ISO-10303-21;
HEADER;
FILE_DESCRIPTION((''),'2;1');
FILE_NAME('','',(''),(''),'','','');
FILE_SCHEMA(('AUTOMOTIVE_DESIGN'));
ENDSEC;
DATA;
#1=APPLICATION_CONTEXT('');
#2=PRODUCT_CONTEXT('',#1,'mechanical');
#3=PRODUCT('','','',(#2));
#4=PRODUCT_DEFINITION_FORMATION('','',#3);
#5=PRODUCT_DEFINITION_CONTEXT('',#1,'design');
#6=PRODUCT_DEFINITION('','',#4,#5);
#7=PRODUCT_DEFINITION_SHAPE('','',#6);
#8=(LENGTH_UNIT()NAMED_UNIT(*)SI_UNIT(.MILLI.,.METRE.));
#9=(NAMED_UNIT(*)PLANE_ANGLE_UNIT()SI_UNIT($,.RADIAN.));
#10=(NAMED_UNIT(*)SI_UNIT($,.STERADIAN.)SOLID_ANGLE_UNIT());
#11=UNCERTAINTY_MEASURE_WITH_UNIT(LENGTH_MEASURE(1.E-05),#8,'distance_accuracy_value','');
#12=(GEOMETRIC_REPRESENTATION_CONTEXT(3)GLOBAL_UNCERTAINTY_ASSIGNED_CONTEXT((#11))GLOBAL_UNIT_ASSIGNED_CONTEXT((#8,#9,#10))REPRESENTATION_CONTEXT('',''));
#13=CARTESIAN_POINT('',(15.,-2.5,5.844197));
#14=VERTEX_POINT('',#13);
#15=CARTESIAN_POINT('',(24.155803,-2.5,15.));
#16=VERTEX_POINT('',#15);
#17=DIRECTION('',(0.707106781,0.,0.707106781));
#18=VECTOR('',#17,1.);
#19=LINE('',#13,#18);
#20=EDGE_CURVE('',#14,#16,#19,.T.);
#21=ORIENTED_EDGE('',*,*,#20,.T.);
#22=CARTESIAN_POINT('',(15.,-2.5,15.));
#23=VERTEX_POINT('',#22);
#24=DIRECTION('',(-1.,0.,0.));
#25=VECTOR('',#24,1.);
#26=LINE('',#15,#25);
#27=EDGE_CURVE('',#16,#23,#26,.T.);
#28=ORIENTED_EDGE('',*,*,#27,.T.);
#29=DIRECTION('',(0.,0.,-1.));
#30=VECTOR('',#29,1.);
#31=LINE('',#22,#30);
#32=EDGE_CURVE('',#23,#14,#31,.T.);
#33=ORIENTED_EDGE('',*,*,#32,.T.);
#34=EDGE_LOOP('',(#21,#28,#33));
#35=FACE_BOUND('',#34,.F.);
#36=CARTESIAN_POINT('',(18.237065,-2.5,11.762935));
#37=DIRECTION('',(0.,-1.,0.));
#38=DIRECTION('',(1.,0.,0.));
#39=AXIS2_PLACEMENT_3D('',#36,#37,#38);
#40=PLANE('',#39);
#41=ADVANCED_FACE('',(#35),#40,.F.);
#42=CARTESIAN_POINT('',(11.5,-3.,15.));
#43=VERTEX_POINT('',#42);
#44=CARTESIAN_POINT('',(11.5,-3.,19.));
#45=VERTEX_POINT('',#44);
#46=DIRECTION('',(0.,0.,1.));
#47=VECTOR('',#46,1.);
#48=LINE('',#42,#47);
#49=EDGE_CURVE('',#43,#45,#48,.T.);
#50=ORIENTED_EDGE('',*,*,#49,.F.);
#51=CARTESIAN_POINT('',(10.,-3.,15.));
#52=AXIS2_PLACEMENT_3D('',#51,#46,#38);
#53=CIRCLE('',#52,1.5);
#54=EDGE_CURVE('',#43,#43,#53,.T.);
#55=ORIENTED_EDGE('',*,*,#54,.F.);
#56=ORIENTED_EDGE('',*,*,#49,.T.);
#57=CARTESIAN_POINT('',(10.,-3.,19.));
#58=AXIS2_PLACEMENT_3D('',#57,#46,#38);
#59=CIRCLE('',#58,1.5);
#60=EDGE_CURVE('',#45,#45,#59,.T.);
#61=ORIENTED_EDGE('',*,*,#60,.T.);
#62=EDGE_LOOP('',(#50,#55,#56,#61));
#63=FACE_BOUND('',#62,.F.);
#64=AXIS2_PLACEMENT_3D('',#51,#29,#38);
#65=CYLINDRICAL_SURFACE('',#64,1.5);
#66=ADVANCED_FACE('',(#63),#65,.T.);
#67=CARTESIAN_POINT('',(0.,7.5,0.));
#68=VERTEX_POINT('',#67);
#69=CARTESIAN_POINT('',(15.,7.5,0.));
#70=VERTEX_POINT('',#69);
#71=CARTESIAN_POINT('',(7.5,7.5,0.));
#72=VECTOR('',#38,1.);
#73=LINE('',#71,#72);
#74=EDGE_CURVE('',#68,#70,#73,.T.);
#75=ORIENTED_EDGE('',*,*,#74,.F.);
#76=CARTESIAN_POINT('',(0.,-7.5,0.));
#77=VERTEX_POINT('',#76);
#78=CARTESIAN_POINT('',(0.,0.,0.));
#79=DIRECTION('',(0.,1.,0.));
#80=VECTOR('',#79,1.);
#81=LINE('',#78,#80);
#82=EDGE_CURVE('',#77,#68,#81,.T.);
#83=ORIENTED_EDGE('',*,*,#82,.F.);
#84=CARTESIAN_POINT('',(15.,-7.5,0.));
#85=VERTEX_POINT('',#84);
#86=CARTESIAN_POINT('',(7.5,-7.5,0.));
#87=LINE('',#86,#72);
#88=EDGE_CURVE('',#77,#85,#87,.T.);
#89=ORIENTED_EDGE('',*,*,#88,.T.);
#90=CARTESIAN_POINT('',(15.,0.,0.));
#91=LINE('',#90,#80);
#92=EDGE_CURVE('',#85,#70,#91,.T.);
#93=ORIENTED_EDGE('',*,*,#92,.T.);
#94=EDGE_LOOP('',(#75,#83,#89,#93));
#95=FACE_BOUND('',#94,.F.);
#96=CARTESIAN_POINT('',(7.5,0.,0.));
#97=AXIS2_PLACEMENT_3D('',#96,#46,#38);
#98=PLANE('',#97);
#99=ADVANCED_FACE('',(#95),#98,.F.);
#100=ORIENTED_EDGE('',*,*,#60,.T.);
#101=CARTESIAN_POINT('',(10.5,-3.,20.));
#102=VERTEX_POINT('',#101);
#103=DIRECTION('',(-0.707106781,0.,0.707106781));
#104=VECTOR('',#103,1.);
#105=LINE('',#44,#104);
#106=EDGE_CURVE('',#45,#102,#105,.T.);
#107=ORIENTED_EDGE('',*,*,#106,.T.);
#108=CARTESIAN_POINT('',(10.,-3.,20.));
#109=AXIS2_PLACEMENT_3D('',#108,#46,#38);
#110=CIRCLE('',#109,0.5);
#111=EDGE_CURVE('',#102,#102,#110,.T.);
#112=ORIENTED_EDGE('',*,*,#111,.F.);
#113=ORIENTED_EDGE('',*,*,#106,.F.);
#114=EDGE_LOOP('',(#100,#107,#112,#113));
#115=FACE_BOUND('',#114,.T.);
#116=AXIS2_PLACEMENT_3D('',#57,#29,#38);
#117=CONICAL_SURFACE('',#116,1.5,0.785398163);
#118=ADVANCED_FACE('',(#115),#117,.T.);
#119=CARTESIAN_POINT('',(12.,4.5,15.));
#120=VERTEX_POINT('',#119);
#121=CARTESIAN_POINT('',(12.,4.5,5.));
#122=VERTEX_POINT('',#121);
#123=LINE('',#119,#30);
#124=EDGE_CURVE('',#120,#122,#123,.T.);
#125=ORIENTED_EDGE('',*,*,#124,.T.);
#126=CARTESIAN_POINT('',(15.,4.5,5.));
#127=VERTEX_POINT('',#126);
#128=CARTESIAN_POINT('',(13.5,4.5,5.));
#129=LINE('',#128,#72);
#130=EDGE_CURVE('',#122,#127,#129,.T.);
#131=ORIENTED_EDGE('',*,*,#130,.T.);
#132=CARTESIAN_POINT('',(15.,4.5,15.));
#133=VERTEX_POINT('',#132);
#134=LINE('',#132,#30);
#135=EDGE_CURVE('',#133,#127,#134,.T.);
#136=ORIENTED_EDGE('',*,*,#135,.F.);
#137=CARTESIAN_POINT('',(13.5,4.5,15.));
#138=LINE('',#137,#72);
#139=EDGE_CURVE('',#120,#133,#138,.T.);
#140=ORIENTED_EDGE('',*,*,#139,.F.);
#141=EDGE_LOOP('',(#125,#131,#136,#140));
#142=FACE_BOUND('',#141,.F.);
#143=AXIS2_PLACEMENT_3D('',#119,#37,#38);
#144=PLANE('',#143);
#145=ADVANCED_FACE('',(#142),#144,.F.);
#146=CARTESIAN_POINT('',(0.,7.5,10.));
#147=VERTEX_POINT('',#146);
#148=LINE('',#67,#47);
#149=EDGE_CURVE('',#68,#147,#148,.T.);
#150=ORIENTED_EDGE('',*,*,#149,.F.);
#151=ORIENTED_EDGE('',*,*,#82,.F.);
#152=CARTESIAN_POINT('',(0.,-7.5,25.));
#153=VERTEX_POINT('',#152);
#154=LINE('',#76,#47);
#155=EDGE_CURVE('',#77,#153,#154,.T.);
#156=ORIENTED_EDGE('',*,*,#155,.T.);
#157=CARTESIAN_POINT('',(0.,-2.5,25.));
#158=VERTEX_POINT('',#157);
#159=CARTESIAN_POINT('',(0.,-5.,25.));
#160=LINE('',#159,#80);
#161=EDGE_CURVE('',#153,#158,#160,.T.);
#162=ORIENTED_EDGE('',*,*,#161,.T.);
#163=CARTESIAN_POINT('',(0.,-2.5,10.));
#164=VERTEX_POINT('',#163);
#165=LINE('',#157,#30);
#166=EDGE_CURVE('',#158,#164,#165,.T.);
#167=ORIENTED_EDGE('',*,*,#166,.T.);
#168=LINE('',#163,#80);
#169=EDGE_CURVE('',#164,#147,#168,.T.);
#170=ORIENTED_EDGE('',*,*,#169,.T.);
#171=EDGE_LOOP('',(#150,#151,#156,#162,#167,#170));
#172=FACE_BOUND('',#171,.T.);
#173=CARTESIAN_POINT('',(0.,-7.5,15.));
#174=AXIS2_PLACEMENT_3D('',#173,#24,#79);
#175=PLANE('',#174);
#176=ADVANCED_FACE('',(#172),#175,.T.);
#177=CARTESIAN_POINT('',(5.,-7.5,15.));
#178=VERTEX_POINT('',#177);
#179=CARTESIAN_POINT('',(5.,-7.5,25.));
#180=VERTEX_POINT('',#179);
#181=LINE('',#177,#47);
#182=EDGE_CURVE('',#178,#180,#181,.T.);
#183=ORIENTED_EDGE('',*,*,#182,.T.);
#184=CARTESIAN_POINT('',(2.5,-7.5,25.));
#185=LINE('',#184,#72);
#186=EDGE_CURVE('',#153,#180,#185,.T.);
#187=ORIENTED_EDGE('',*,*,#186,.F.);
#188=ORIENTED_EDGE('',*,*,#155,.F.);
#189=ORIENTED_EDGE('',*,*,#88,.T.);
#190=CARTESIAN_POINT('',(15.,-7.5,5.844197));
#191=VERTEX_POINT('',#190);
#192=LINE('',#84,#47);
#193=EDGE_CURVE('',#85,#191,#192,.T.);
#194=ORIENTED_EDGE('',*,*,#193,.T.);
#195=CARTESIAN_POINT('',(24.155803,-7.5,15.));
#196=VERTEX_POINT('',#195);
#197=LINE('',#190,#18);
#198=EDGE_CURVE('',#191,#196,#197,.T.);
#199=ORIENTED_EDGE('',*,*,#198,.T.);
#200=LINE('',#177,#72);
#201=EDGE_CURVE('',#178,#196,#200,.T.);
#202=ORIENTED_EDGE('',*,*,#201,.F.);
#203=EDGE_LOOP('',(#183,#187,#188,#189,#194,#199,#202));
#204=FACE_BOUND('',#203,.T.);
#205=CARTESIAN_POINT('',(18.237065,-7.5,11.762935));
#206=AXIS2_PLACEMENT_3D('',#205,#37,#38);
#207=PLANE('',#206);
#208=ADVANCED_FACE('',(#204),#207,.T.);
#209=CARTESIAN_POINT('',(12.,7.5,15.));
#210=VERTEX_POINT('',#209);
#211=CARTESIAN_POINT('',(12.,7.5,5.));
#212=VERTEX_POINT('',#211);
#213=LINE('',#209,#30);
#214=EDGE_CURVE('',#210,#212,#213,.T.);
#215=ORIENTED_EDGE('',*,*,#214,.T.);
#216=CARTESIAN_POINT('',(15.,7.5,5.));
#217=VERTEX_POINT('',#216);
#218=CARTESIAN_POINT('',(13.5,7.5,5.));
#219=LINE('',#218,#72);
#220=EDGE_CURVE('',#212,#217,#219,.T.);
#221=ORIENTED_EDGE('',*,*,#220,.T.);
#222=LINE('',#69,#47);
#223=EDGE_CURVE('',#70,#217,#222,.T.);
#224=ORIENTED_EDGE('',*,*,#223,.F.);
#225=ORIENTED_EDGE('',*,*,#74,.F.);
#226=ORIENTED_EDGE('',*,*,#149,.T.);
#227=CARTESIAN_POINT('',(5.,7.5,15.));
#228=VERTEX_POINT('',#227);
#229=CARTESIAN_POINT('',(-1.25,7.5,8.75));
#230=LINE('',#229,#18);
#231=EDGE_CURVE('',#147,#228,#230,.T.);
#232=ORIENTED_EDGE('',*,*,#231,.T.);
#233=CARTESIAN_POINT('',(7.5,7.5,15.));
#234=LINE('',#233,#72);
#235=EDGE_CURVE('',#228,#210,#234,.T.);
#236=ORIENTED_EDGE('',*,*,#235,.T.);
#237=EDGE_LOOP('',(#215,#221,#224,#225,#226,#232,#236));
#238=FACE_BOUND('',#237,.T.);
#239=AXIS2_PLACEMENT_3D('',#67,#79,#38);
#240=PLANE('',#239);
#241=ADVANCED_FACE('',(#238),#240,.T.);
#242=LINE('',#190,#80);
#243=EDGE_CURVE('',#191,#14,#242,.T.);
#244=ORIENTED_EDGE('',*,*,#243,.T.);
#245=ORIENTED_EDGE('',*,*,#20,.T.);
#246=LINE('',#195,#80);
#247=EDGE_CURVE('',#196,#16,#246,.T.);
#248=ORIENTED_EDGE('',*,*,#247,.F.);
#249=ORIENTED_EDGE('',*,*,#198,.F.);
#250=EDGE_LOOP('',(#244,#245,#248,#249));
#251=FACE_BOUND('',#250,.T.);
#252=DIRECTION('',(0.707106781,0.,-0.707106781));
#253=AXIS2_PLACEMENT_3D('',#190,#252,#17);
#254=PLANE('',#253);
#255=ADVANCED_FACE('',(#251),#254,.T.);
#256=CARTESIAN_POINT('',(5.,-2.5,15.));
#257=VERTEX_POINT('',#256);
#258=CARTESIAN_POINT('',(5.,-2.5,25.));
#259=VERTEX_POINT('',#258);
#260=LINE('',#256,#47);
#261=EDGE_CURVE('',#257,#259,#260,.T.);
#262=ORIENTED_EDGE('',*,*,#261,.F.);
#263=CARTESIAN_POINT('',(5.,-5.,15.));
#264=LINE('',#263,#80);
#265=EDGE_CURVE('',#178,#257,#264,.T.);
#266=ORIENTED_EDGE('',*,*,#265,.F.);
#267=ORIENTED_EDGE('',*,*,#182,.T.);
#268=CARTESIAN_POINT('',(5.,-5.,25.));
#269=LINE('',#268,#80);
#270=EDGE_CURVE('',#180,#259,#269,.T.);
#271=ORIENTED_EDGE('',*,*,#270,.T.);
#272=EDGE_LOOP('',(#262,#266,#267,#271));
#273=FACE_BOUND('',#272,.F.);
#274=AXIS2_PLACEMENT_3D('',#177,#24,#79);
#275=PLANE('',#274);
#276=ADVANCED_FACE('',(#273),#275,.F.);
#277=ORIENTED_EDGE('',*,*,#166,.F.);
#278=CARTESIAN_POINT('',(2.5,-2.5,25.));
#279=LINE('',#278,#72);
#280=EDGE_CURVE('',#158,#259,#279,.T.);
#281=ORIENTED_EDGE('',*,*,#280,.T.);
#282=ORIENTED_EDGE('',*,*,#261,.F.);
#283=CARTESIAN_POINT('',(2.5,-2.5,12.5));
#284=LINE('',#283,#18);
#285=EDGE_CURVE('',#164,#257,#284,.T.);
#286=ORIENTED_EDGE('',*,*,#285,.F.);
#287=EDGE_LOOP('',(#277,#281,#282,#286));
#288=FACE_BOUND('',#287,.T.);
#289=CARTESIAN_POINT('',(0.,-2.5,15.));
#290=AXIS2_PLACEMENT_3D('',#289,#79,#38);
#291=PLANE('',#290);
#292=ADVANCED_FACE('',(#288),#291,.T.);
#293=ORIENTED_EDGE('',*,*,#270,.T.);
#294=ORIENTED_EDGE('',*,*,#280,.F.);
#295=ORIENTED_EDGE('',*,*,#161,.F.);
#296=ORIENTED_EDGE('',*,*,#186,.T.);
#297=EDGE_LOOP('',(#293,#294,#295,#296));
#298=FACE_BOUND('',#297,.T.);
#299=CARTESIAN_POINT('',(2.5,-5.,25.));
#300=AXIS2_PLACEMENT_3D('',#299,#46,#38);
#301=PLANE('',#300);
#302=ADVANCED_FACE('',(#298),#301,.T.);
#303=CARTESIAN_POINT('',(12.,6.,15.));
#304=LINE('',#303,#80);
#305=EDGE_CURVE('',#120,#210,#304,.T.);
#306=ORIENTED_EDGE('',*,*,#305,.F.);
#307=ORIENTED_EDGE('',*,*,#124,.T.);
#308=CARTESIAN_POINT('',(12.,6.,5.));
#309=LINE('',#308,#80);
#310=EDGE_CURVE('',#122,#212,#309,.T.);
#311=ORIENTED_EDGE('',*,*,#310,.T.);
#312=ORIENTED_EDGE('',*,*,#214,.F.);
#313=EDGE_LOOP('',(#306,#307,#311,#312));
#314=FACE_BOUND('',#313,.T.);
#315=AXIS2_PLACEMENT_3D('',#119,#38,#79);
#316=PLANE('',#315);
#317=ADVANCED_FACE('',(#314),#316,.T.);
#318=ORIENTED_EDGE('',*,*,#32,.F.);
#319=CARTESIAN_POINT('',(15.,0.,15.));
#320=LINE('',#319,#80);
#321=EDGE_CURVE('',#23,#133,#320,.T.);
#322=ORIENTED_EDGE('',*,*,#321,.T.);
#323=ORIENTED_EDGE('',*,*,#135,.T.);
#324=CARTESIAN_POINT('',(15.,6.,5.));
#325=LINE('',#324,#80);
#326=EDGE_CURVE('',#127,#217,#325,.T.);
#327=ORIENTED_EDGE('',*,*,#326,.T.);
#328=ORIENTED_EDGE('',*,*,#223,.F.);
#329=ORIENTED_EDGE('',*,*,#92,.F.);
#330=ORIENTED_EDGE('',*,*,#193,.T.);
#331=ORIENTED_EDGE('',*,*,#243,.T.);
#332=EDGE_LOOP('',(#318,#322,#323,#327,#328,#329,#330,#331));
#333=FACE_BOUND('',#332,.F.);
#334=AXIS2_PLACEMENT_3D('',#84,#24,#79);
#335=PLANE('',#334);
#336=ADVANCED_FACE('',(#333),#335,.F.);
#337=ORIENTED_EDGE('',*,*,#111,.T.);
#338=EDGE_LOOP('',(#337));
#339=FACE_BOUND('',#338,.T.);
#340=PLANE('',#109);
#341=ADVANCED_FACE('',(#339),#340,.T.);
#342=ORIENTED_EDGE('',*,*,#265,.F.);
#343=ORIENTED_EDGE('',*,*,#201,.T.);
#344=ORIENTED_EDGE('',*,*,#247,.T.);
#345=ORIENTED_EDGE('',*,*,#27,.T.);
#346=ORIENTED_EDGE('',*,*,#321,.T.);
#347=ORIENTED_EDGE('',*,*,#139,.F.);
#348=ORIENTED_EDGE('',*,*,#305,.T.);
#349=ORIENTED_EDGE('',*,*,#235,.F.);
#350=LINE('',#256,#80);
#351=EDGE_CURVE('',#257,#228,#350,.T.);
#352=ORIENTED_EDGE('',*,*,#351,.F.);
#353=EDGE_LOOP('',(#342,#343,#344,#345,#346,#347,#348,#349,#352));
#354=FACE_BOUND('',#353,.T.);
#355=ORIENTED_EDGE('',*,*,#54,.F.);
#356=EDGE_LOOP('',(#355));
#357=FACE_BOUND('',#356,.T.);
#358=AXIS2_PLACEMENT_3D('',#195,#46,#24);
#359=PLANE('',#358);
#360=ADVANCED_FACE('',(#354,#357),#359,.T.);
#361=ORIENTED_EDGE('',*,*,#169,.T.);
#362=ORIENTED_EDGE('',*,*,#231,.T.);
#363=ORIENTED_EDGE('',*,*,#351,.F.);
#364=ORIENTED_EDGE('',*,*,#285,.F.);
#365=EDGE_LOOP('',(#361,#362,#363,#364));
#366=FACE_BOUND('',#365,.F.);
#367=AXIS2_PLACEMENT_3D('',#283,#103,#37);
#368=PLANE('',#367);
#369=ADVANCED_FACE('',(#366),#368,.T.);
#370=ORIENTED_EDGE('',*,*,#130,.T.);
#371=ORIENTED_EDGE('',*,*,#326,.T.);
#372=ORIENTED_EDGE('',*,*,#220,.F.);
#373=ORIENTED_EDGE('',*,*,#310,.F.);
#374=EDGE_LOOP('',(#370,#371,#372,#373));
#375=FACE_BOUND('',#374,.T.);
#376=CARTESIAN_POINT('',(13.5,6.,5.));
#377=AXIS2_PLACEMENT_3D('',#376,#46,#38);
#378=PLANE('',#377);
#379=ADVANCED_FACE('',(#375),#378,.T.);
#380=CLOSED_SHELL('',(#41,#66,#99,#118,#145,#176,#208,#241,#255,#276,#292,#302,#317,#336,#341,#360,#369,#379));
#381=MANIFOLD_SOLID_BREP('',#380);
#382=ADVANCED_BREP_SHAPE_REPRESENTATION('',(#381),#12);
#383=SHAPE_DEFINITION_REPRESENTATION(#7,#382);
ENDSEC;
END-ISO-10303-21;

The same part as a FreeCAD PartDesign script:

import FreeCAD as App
import Part
import Sketcher

V = App.Vector
Q = App.Units.Quantity


def edges_at(feature, points):
    """Names of the edges that pass closest to the given points."""
    edges = feature.Shape.Edges
    near = lambda p: min(range(len(edges)), key=lambda i: edges[i].distToShape(Part.Vertex(*p))[0])
    return sorted({f"Edge{near(p) + 1}" for p in points})


def add_polygon(sketch, points):
    """Adds a closed chain of lines whose ends are joined by coincident constraints."""
    first, n = sketch.GeometryCount, len(points)
    for a, b in zip(points, points[1:] + points[:1]):
        sketch.addGeometry(Part.LineSegment(App.Vector(*a, 0), App.Vector(*b, 0)), False)
    for i in range(n):
        sketch.addConstraint(Sketcher.Constraint("Coincident", first + i, 2, first + (i + 1) % n, 1))

doc = App.newDocument("Part")
body = doc.addObject("PartDesign::Body", "Body")

# Sketch on XY plane
sketch1 = body.newObject("Sketcher::SketchObject", "Sketch")
sketch1.AttachmentSupport = (doc.getObject("XY_Plane"), [""])
sketch1.MapMode = "FlatFace"
add_polygon(sketch1, [(0, 8), (0, -8), (15, -8), (15, 8)])  # lines 0-3
sketch1.addConstraint([
    Sketcher.Constraint("Vertical", 0),
    Sketcher.Constraint("Horizontal", 1),
    Sketcher.Constraint("Vertical", 2),
    Sketcher.Constraint("Horizontal", 3),
    Sketcher.Constraint("Symmetric", 0, 2, 3, 2, -1, 1),
    Sketcher.Constraint("Equal", 3, 0),
    Sketcher.Constraint("DistanceX", 1, 1, 1, 2, Q("15 mm")),
])
pad1 = body.newObject("PartDesign::Pad", "Pad")
pad1.Profile = sketch1
pad1.Length = 15

# Sketch on XY plane
sketch2 = body.newObject("Sketcher::SketchObject", "Sketch001")
sketch2.AttachmentSupport = (doc.getObject("XY_Plane"), [""])
sketch2.MapMode = "FlatFace"
sketch2.AttachmentOffset = App.Placement(V(0, 0, 15), App.Rotation())
add_polygon(sketch2, [(0, -2), (0, -8), (5, -8), (5, -2)])  # lines 0-3
sketch2.addConstraint([
    Sketcher.Constraint("Vertical", 0),
    Sketcher.Constraint("Horizontal", 1),
    Sketcher.Constraint("Vertical", 2),
    Sketcher.Constraint("Horizontal", 3),
    Sketcher.Constraint("PointOnObject", 0, 2, -2),
    Sketcher.Constraint("Equal", 3, 0),
    Sketcher.Constraint("DistanceX", 1, 1, 1, 2, Q("5 mm")),
    Sketcher.Constraint("DistanceY", 0, 2, -1, 1, Q("7.5 mm")),
])
pad2 = body.newObject("PartDesign::Pad", "Pad001")
pad2.Profile = sketch2
pad2.Length = 10

# Sketch on XY plane
sketch3 = body.newObject("Sketcher::SketchObject", "Sketch002")
sketch3.AttachmentSupport = (doc.getObject("XY_Plane"), [""])
sketch3.MapMode = "FlatFace"
sketch3.AttachmentOffset = App.Placement(V(0, 0, 15), App.Rotation())
sketch3.addGeometry(Part.Circle(V(10, -3, 0), V(0, 0, 1), 1.5), False)
sketch3.addConstraint([
    Sketcher.Constraint("Diameter", 0, Q("3 mm")),
    Sketcher.Constraint("DistanceX", -1, 1, 0, 3, Q("10 mm")),
    Sketcher.Constraint("DistanceY", 0, 3, -1, 1, Q("3 mm")),
])
pad3 = body.newObject("PartDesign::Pad", "Pad002")
pad3.Profile = sketch3
pad3.Length = 5

# Sketch on XY plane
sketch4 = body.newObject("Sketcher::SketchObject", "Sketch003")
sketch4.AttachmentSupport = (doc.getObject("XY_Plane"), [""])
sketch4.MapMode = "FlatFace"
sketch4.AttachmentOffset = App.Placement(V(0, 0, 15), App.Rotation())
add_polygon(sketch4, [(12, 7.5), (12, 4.5), (15, 4.5), (15, 7.5)])  # lines 0-3
sketch4.addConstraint([
    Sketcher.Constraint("Vertical", 0),
    Sketcher.Constraint("Horizontal", 1),
    Sketcher.Constraint("Vertical", 2),
    Sketcher.Constraint("Horizontal", 3),
    Sketcher.Constraint("Equal", 3, 0),
    Sketcher.Constraint("DistanceX", 1, 1, 1, 2, Q("3 mm")),
    Sketcher.Constraint("DistanceX", -1, 1, 0, 2, Q("12 mm")),
    Sketcher.Constraint("DistanceY", -1, 1, 0, 2, Q("4.5 mm")),
])
pocket1 = body.newObject("PartDesign::Pocket", "Pocket")
pocket1.Profile = sketch4
pocket1.Length = 10
doc.recompute()

chamfer = body.newObject("PartDesign::Chamfer", "Chamfer")
chamfer.Base = (pocket1, edges_at(pocket1, [(0, 2.5, 15)]))
chamfer.Size = 5

# Sketch on XZ plane
sketch5 = body.newObject("Sketcher::SketchObject", "Sketch004")
sketch5.AttachmentSupport = (doc.getObject("XZ_Plane"), [""])
sketch5.MapMode = "FlatFace"
sketch5.AttachmentOffset = App.Placement(V(0, 0, 7.5), App.Rotation())
add_polygon(sketch5, [(24, 15), (15, 15), (15, 6)])  # lines 0-2
sketch5.addConstraint([
    Sketcher.Constraint("Horizontal", 0),
    Sketcher.Constraint("Vertical", 1),
    Sketcher.Constraint("Equal", 0, 1),
    Sketcher.Constraint("DistanceX", -1, 1, 0, 2, Q("15 mm")),
    Sketcher.Constraint("DistanceY", -1, 1, 0, 2, Q("15 mm")),
    Sketcher.Constraint("Distance", 2, Q("12.948261 mm")),
])
pad4 = body.newObject("PartDesign::Pad", "Pad003")
pad4.Profile = sketch5
pad4.Length = 5
pad4.Reversed = True
doc.recompute()

chamfer2 = body.newObject("PartDesign::Chamfer", "Chamfer001")
chamfer2.Base = (pad4, edges_at(pad4, [(8.5, -3, 20)]))
chamfer2.Size = 1

doc.recompute()
